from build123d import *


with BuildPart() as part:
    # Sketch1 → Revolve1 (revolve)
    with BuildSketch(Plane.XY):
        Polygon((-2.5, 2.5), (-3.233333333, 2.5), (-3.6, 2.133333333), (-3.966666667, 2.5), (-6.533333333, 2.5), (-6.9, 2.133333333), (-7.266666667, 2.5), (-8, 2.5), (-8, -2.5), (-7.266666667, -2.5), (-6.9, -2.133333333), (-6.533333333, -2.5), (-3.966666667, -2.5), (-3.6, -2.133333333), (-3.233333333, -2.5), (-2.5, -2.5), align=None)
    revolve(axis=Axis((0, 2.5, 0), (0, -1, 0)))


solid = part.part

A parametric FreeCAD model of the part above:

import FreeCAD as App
import Part
import Sketcher


def add_polygon(sketch, points):
    """Adds a closed chain of lines whose ends are joined by coincident constraints."""
    first, n = sketch.GeometryCount, len(points)
    for a, b in zip(points, points[1:] + points[:1]):
        sketch.addGeometry(Part.LineSegment(App.Vector(*a, 0), App.Vector(*b, 0)), False)
    for i in range(n):
        sketch.addConstraint(Sketcher.Constraint("Coincident", first + i, 2, first + (i + 1) % n, 1))

doc = App.newDocument("Part")
body = doc.addObject("PartDesign::Body", "Body")

sketch1 = body.newObject("Sketcher::SketchObject", "Sketch")
sketch1.AttachmentSupport = (doc.getObject("XY_Plane"), [""])
sketch1.MapMode = "FlatFace"
add_polygon(sketch1, [(-2.5, 2.5), (-3.2, 2.5), (-3.6, 2.1), (-4, 2.5), (-6.5, 2.5), (-6.9, 2.1), (-7.3, 2.5), (-8, 2.5), (-8, -2.5), (-7.3, -2.5), (-6.9, -2.1), (-6.5, -2.5), (-4, -2.5), (-3.6, -2.1), (-3.2, -2.5), (-2.5, -2.5)])
sketch1.addConstraint([
    Sketcher.Constraint("Horizontal", 0),
    Sketcher.Constraint("Horizontal", 3),
    Sketcher.Constraint("Horizontal", 6),
    Sketcher.Constraint("Vertical", 7),
    Sketcher.Constraint("Horizontal", 8),
    Sketcher.Constraint("Horizontal", 11),
    Sketcher.Constraint("Horizontal", 14),
    Sketcher.Constraint("Vertical", 15),
    Sketcher.Constraint("Symmetric", 5, 2, 8, 2, -1),
    Sketcher.Constraint("Symmetric", 4, 2, 9, 2, -1),
    Sketcher.Constraint("Symmetric", 3, 2, 10, 2, -1),
    Sketcher.Constraint("Symmetric", 1, 2, 12, 2, -1),
    Sketcher.Constraint("Symmetric", 0, 2, 13, 2, -1),
    Sketcher.Constraint("Perpendicular", 1, 2),
    Sketcher.Constraint("Perpendicular", 2, 4),
    Sketcher.Constraint("Perpendicular", 4, 5),
    Sketcher.Constraint("Perpendicular", 5, 9),
    Sketcher.Constraint("Perpendicular", 10, 12),
    Sketcher.Constraint("Horizontal", 0, 2, 2, 2),
    Sketcher.Constraint("Horizontal", 1, 2, 4, 2),
    Sketcher.Constraint("Horizontal", 3, 2, 5, 2),
    Sketcher.Constraint("Equal", 0, 6),
    Sketcher.Constraint("DistanceY", 7, 2, 7, 1, 5.0),
    Sketcher.Constraint("DistanceX", 6, 2, -1, 1, 8.0),
    Sketcher.Constraint("DistanceX", 1, 2, -1, 1, 3.6),
    Sketcher.Constraint("DistanceX", 4, 2, -1, 1, 6.9),
    Sketcher.Constraint("DistanceX", 0, 2, 0, 1, 0.733333),
])
revolution = body.newObject("PartDesign::Revolution", "Revolution")
revolution.Profile = sketch1
revolution.ReferenceAxis = (sketch1, ["V_Axis"])
revolution.Angle = 360

doc.recompute()
